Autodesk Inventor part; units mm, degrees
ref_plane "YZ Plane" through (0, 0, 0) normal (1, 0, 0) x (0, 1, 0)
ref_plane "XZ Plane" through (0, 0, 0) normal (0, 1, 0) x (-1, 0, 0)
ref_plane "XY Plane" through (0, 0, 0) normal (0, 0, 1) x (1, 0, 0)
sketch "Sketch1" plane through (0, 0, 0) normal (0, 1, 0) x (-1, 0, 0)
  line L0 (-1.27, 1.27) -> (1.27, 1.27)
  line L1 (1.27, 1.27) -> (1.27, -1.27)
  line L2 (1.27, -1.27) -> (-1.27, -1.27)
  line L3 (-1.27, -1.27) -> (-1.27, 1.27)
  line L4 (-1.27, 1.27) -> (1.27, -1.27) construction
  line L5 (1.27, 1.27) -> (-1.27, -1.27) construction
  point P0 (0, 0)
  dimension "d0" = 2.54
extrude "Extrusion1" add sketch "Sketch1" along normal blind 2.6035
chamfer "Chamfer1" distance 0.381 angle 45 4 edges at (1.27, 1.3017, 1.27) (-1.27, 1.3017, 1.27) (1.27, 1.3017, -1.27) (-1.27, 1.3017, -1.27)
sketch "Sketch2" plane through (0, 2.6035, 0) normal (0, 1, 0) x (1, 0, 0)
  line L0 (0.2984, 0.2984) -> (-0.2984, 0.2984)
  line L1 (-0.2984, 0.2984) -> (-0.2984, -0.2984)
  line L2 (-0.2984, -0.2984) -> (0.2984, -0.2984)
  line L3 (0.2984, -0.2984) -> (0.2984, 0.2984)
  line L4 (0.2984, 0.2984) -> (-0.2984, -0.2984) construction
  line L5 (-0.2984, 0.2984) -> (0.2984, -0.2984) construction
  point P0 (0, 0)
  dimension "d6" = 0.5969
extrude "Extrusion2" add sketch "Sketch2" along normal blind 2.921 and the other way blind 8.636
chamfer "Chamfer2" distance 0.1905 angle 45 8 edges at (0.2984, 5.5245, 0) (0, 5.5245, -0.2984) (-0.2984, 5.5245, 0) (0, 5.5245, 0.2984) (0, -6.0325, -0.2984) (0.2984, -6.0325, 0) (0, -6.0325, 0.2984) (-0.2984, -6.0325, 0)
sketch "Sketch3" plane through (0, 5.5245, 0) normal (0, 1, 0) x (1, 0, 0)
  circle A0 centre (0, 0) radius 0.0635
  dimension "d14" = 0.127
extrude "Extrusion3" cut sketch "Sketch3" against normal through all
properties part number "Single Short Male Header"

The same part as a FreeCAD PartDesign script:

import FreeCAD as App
import Part
import Sketcher
from FreeCAD import Vector
Q = App.Units.Quantity


def edges_at(feature, points):
    """Names of the edges that pass closest to the given points."""
    edges = feature.Shape.Edges
    near = lambda p: min(range(len(edges)), key=lambda i: edges[i].distToShape(Part.Vertex(*p))[0])
    return sorted({f"Edge{near(p) + 1}" for p in points})


def add_polygon(sketch, points):
    """Adds a closed chain of lines whose ends are joined by coincident constraints."""
    first, n = sketch.GeometryCount, len(points)
    for a, b in zip(points, points[1:] + points[:1]):
        sketch.addGeometry(Part.LineSegment(App.Vector(*a, 0), App.Vector(*b, 0)), False)
    for i in range(n):
        sketch.addConstraint(Sketcher.Constraint("Coincident", first + i, 2, first + (i + 1) % n, 1))

doc = App.newDocument("Part")
body = doc.addObject("PartDesign::Body", "Body")

sketch1 = doc.addObject("Sketcher::SketchObject", "Sketch")
body.addObject(sketch1)
sketch1.AttachmentSupport = (doc.XZ_Plane, [""])
sketch1.MapMode = "FlatFace"
add_polygon(sketch1, [(-1.3, 1.3), (1.3, 1.3), (1.3, -1.3), (-1.3, -1.3)])
sketch1.addConstraint(Sketcher.Constraint("Horizontal", 0))
sketch1.addConstraint(Sketcher.Constraint("Vertical", 1))
sketch1.addConstraint(Sketcher.Constraint("Horizontal", 2))
sketch1.addConstraint(Sketcher.Constraint("Vertical", 3))
sketch1.addConstraint(Sketcher.Constraint("Symmetric", 0, 2, 2, 2, -1, 1))
sketch1.addConstraint(Sketcher.Constraint("Equal", 2, 1))
sketch1.addConstraint(Sketcher.Constraint("DistanceX", 0, 1, 0, 2, Q("0.1 in")))
pad1 = doc.addObject("PartDesign::Pad", "Pad")
body.addObject(pad1)
pad1.Profile = sketch1
pad1.Length = Q("0.1025 in")
pad1.Reversed = True
doc.recompute()

chamfer = doc.addObject("PartDesign::Chamfer", "Chamfer")
body.addObject(chamfer)
chamfer.Base = (pad1, edges_at(pad1, [
    (1.27, 1.302, 1.27),
    (-1.27, 1.302, 1.27),
    (1.27, 1.302, -1.27),
    (-1.27, 1.302, -1.27),
]))
chamfer.Size = Q("0.015 in")

sketch2 = doc.addObject("Sketcher::SketchObject", "Sketch001")
body.addObject(sketch2)
sketch2.AttachmentSupport = (doc.XZ_Plane, [""])
sketch2.MapMode = "FlatFace"
sketch2.AttachmentOffset = App.Placement(Vector(0, 0, -0.1025 * 25.4), App.Rotation())
add_polygon(sketch2, [(0.3, 0.3), (0.3, -0.3), (-0.3, -0.3), (-0.3, 0.3)])
sketch2.addConstraint(Sketcher.Constraint("Vertical", 0))
sketch2.addConstraint(Sketcher.Constraint("Horizontal", 1))
sketch2.addConstraint(Sketcher.Constraint("Vertical", 2))
sketch2.addConstraint(Sketcher.Constraint("Horizontal", 3))
sketch2.addConstraint(Sketcher.Constraint("Symmetric", 0, 2, 2, 2, -1, 1))
sketch2.addConstraint(Sketcher.Constraint("Equal", 3, 0))
sketch2.addConstraint(Sketcher.Constraint("DistanceX", 1, 2, 1, 1, Q("0.0235 in")))
pad2 = doc.addObject("PartDesign::Pad", "Pad001")
body.addObject(pad2)
pad2.Profile = sketch2
pad2.Type = "TwoLengths"
pad2.Length = Q("0.115 in")
pad2.Length2 = Q("0.34 in")
pad2.Reversed = True
doc.recompute()

chamfer2 = doc.addObject("PartDesign::Chamfer", "Chamfer001")
body.addObject(chamfer2)
chamfer2.Base = (pad2, edges_at(pad2, [
    (0.298, 5.524, 0),
    (0, 5.524, -0.298),
    (-0.298, 5.524, 0),
    (0, 5.524, 0.298),
    (0, -6.032, -0.298),
    (0.298, -6.032, 0),
    (0, -6.032, 0.298),
    (-0.298, -6.032, 0),
]))
chamfer2.Size = Q("0.0075 in")

sketch3 = doc.addObject("Sketcher::SketchObject", "Sketch002")
body.addObject(sketch3)
sketch3.AttachmentSupport = (doc.XZ_Plane, [""])
sketch3.MapMode = "FlatFace"
sketch3.AttachmentOffset = App.Placement(Vector(0, 0, -0.2175 * 25.4), App.Rotation())
sketch3.addGeometry(Part.Circle(Vector(0, 0, 0), Vector(0, 0, 1), 0.06), False)
sketch3.addConstraint(Sketcher.Constraint("Coincident", 0, 3, -1, 1))
sketch3.addConstraint(Sketcher.Constraint("Diameter", 0, Q("0.005 in")))
pocket1 = doc.addObject("PartDesign::Pocket", "Pocket")
body.addObject(pocket1)
pocket1.Profile = sketch3
pocket1.Type = "ThroughAll"
pocket1.Reversed = True

doc.recompute()
